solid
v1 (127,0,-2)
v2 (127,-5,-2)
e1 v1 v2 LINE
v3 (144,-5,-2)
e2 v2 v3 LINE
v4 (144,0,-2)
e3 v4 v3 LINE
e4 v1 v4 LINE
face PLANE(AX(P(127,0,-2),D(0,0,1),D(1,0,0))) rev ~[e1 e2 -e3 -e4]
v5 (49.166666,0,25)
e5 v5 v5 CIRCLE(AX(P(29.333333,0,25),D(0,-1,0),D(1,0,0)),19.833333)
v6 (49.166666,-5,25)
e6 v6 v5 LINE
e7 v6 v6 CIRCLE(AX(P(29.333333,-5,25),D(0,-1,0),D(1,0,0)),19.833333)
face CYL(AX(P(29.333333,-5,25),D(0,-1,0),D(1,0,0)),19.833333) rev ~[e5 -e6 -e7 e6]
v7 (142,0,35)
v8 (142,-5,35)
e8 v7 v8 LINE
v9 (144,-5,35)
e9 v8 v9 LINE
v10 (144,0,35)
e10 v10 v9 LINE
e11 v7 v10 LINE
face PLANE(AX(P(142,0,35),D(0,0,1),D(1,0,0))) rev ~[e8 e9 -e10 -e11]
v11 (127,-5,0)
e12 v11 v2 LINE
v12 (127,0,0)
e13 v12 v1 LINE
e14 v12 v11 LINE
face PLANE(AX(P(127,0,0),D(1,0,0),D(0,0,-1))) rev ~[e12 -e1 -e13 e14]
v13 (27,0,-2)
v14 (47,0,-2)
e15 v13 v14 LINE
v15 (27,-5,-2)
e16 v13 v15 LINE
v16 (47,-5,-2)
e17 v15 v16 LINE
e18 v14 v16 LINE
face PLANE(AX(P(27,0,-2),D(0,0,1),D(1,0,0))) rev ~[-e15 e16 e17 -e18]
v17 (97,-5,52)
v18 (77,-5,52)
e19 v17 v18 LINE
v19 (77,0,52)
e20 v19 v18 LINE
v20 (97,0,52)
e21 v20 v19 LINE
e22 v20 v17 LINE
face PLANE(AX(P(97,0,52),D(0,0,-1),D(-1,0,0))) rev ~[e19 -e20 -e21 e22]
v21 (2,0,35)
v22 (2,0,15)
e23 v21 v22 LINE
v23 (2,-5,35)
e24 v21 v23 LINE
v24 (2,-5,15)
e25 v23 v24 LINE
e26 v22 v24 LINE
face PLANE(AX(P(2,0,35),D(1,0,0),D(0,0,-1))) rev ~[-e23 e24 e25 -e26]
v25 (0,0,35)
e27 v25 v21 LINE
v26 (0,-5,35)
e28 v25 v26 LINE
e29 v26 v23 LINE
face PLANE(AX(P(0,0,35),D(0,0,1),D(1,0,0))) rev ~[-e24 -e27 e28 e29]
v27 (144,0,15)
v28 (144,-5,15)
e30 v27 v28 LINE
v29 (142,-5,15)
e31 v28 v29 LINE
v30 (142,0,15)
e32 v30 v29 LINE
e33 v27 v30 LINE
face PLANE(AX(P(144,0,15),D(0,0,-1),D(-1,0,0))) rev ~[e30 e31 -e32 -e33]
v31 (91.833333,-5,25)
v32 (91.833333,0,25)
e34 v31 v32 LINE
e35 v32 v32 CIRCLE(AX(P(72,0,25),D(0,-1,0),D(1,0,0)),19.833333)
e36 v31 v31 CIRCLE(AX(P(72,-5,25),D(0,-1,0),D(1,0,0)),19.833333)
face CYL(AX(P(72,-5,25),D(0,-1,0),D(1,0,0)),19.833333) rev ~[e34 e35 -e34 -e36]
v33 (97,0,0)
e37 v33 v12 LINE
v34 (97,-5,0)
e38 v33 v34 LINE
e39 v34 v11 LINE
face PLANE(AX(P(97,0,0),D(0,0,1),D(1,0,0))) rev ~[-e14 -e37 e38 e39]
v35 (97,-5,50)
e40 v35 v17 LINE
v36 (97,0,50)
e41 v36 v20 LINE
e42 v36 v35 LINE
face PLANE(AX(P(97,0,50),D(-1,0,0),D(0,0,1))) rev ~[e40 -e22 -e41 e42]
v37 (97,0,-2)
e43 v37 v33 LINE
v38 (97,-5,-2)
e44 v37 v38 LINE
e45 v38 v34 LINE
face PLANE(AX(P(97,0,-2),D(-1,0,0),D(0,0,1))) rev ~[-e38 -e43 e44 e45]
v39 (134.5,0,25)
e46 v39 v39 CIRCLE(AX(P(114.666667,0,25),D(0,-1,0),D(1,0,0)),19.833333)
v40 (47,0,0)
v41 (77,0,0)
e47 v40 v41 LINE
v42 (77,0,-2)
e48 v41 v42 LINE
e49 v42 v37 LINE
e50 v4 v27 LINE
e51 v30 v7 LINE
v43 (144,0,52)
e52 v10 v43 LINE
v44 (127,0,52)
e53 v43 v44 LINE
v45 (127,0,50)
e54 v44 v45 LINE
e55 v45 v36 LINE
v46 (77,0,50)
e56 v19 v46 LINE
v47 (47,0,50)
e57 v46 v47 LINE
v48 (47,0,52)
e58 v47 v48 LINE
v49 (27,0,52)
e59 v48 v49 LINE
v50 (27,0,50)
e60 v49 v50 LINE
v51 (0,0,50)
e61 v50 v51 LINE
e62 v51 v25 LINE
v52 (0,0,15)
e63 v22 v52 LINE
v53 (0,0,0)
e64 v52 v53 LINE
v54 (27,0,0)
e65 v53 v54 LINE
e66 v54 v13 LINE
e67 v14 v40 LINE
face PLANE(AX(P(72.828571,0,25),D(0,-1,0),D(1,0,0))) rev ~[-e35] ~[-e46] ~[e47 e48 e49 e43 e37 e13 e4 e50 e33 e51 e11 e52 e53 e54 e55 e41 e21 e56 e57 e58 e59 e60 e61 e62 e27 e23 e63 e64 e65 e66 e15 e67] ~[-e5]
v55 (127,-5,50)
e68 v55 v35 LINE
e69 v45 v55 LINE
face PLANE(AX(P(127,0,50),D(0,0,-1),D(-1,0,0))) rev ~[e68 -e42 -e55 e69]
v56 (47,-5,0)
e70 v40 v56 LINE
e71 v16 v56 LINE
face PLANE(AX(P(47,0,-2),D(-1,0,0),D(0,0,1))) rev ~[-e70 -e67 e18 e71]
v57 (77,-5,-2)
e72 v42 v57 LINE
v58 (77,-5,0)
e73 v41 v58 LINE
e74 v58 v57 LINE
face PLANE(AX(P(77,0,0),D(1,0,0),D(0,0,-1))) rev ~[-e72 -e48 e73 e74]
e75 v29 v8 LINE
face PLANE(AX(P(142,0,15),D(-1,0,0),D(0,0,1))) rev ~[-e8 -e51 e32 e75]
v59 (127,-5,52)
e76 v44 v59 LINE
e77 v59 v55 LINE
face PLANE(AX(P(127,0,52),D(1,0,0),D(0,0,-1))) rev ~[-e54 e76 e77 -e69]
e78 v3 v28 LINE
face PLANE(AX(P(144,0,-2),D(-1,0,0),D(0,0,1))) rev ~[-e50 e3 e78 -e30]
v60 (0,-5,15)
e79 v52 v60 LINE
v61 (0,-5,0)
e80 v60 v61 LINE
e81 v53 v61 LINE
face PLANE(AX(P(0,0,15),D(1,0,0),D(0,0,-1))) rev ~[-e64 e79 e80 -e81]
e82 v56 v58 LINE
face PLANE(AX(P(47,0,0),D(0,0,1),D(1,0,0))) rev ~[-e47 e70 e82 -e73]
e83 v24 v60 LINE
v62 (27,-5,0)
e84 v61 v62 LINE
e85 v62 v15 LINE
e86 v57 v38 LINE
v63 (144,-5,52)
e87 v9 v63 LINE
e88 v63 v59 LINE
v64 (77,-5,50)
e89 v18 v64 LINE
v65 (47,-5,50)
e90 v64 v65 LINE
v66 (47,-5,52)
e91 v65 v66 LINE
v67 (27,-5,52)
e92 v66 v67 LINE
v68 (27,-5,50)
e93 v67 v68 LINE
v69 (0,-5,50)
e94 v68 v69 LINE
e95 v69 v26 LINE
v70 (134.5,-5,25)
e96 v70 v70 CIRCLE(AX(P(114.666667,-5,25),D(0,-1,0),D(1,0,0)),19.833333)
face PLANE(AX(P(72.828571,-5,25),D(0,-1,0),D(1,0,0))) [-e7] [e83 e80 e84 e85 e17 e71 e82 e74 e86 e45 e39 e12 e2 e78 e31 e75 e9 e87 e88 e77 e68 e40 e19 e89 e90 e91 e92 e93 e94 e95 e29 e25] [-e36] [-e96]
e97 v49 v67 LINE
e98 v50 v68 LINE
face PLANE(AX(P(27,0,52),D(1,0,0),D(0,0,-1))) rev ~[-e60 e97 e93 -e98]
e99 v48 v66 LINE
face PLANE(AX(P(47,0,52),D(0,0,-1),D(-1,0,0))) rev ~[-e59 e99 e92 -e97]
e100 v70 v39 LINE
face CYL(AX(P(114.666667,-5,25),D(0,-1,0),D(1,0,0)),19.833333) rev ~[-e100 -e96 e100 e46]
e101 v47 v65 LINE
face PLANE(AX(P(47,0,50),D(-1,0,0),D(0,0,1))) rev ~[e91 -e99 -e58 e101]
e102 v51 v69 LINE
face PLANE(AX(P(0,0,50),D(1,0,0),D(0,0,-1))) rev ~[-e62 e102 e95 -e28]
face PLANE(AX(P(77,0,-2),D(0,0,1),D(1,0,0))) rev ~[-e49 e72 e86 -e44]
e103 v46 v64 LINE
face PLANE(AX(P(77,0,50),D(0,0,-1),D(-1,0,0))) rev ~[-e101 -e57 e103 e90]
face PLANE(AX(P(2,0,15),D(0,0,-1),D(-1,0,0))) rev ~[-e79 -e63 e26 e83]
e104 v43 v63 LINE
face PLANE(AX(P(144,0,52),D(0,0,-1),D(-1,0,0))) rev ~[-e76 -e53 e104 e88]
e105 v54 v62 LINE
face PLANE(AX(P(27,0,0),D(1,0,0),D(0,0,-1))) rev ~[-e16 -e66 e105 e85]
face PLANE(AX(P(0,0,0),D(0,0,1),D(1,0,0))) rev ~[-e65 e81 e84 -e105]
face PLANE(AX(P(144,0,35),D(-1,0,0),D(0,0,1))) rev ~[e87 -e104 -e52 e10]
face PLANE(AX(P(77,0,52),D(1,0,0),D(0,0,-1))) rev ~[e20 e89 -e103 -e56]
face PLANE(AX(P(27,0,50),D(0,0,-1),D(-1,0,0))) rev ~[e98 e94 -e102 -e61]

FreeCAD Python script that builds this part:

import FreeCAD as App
import Part
import Sketcher


def add_polygon(sketch, points):
    """Adds a closed chain of lines whose ends are joined by coincident constraints."""
    first, n = sketch.GeometryCount, len(points)
    for a, b in zip(points, points[1:] + points[:1]):
        sketch.addGeometry(Part.LineSegment(App.Vector(*a, 0), App.Vector(*b, 0)), False)
    for i in range(n):
        sketch.addConstraint(Sketcher.Constraint("Coincident", first + i, 2, first + (i + 1) % n, 1))

doc = App.newDocument("Part")
params = doc.addObject("Spreadsheet::Sheet", "Params")
for row, (alias, value) in enumerate([
    ("sketch1_width", "27 mm"),
    ("sketch1_width2", "20 mm"),
    ("sketch1_width3", "30 mm"),
    ("sketch1_width4", "17 mm"),
    ("sketch1_width5", "2 mm"),
    ("pad1_length", "5 mm"),
    ("pocket1_length", "25 mm"),
], start=1):
    params.set(f"A{row}", alias)
    params.set(f"B{row}", "=" + value)
    params.setAlias(f"B{row}", alias)

body = doc.addObject("PartDesign::Body", "Body")

sketch1 = doc.addObject("Sketcher::SketchObject", "Sketch")
body.addObject(sketch1)
sketch1.AttachmentSupport = (doc.XZ_Plane, [""])
sketch1.MapMode = "FlatFace"
add_polygon(sketch1, [(0, 15), (0, 0), (27, 0), (27, -2), (47, -2), (47, 0), (77, 0), (77, -2), (97, -2), (97, 0), (127, 0), (127, -2), (144, -2), (144, 15), (142, 15), (142, 35), (144, 35), (144, 52), (127, 52), (127, 50), (97, 50), (97, 52), (77, 52), (77, 50), (47, 50), (47, 52), (27, 52), (27, 50), (0, 50), (0, 35), (2, 35), (2, 15)])
sketch1.addConstraint(Sketcher.Constraint("Vertical", 0))
sketch1.addConstraint(Sketcher.Constraint("Horizontal", 1))
sketch1.addConstraint(Sketcher.Constraint("Vertical", 2))
sketch1.addConstraint(Sketcher.Constraint("Horizontal", 3))
sketch1.addConstraint(Sketcher.Constraint("Vertical", 4))
sketch1.addConstraint(Sketcher.Constraint("Horizontal", 5))
sketch1.addConstraint(Sketcher.Constraint("Vertical", 6))
sketch1.addConstraint(Sketcher.Constraint("Horizontal", 7))
sketch1.addConstraint(Sketcher.Constraint("Vertical", 8))
sketch1.addConstraint(Sketcher.Constraint("Horizontal", 9))
sketch1.addConstraint(Sketcher.Constraint("Vertical", 10))
sketch1.addConstraint(Sketcher.Constraint("Horizontal", 11))
sketch1.addConstraint(Sketcher.Constraint("Vertical", 12))
sketch1.addConstraint(Sketcher.Constraint("Horizontal", 13))
sketch1.addConstraint(Sketcher.Constraint("Vertical", 14))
sketch1.addConstraint(Sketcher.Constraint("Horizontal", 15))
sketch1.addConstraint(Sketcher.Constraint("Vertical", 16))
sketch1.addConstraint(Sketcher.Constraint("Horizontal", 17))
sketch1.addConstraint(Sketcher.Constraint("Vertical", 18))
sketch1.addConstraint(Sketcher.Constraint("Horizontal", 19))
sketch1.addConstraint(Sketcher.Constraint("Vertical", 20))
sketch1.addConstraint(Sketcher.Constraint("Horizontal", 21))
sketch1.addConstraint(Sketcher.Constraint("Vertical", 22))
sketch1.addConstraint(Sketcher.Constraint("Horizontal", 23))
sketch1.addConstraint(Sketcher.Constraint("Vertical", 24))
sketch1.addConstraint(Sketcher.Constraint("Horizontal", 25))
sketch1.addConstraint(Sketcher.Constraint("Vertical", 26))
sketch1.addConstraint(Sketcher.Constraint("Horizontal", 27))
sketch1.addConstraint(Sketcher.Constraint("Vertical", 28))
sketch1.addConstraint(Sketcher.Constraint("Horizontal", 29))
sketch1.addConstraint(Sketcher.Constraint("Vertical", 30))
sketch1.addConstraint(Sketcher.Constraint("Horizontal", 31))
sketch1.addConstraint(Sketcher.Constraint("Coincident", 0, 2, -1, 1))
sketch1.addConstraint(Sketcher.Constraint("PointOnObject", 4, 2, -1))
sketch1.addConstraint(Sketcher.Constraint("PointOnObject", 8, 2, -1))
sketch1.addConstraint(Sketcher.Constraint("PointOnObject", 27, 2, -2))
sketch1.addConstraint(Sketcher.Constraint("Horizontal", 3, 2, 6, 2))
sketch1.addConstraint(Sketcher.Constraint("Horizontal", 7, 2, 10, 2))
sketch1.addConstraint(Sketcher.Constraint("Horizontal", 17, 2, 20, 2))
sketch1.addConstraint(Sketcher.Constraint("Horizontal", 19, 2, 22, 2))
sketch1.addConstraint(Sketcher.Constraint("Horizontal", 21, 2, 24, 2))
sketch1.addConstraint(Sketcher.Constraint("Horizontal", 23, 2, 26, 2))
sketch1.addConstraint(Sketcher.Constraint("Horizontal", 15, 2, 28, 2))
sketch1.addConstraint(Sketcher.Constraint("Horizontal", 13, 2, 30, 2))
sketch1.addConstraint(Sketcher.Constraint("Vertical", 12, 2, 15, 2))
sketch1.addConstraint(Sketcher.Constraint("Vertical", 10, 2, 17, 2))
sketch1.addConstraint(Sketcher.Constraint("Vertical", 8, 2, 19, 2))
sketch1.addConstraint(Sketcher.Constraint("Vertical", 6, 2, 21, 2))
sketch1.addConstraint(Sketcher.Constraint("Vertical", 4, 2, 23, 2))
sketch1.addConstraint(Sketcher.Constraint("Vertical", 2, 2, 25, 2))
sketch1.addConstraint(Sketcher.Constraint("Equal", 3, 7))
sketch1.addConstraint(Sketcher.Constraint("Equal", 5, 9))
sketch1.addConstraint(Sketcher.Constraint("Equal", 15, 29))
sketch1.addConstraint(Sketcher.Constraint("Equal", 31, 2))
sketch1.addConstraint(Sketcher.Constraint("Equal", 17, 12))
sketch1.addConstraint(Sketcher.Constraint("Equal", 25, 14))
sketch1.addConstraint(Sketcher.Constraint("Equal", 12, 16))
sketch1.addConstraint(Sketcher.Constraint("Equal", 10, 18))
sketch1.addConstraint(Sketcher.Constraint("DistanceX", 1, 1, 1, 2, 27.0))
sketch1.addConstraint(Sketcher.Constraint("DistanceX", 3, 1, 3, 2, 20.0))
sketch1.addConstraint(Sketcher.Constraint("DistanceX", 5, 1, 5, 2, 30.0))
sketch1.addConstraint(Sketcher.Constraint("DistanceX", 11, 1, 11, 2, 17.0))
sketch1.addConstraint(Sketcher.Constraint("DistanceX", 13, 2, 13, 1, 2.0))
sketch1.setExpression("Constraints[90]", "Params.sketch1_width")
sketch1.setExpression("Constraints[91]", "Params.sketch1_width2")
sketch1.setExpression("Constraints[92]", "Params.sketch1_width3")
sketch1.setExpression("Constraints[93]", "Params.sketch1_width4")
sketch1.setExpression("Constraints[94]", "Params.sketch1_width5")
pad1 = doc.addObject("PartDesign::Pad", "Pad")
body.addObject(pad1)
pad1.Profile = sketch1
pad1.setExpression("Length", "Params.pad1_length")

sketch2 = doc.addObject("Sketcher::SketchObject", "Sketch001")
body.addObject(sketch2)
sketch2.AttachmentSupport = (doc.XZ_Plane, [""])
sketch2.MapMode = "FlatFace"
sketch2.AttachmentOffset = App.Placement(App.Vector(0, 0, 5), App.Rotation())
sketch2.addGeometry(Part.Circle(App.Vector(72, 25, 0), App.Vector(0, 0, 1), 19.833333), False)
sketch2.addGeometry(Part.Circle(App.Vector(114.666667, 25, 0), App.Vector(0, 0, 1), 19.833333), False)
sketch2.addGeometry(Part.Circle(App.Vector(29.333333, 25, 0), App.Vector(0, 0, 1), 19.833333), False)
sketch2.addConstraint(Sketcher.Constraint("Equal", 0, 1))
sketch2.addConstraint(Sketcher.Constraint("Equal", 1, 2))
sketch2.addConstraint(Sketcher.Constraint("Horizontal", 0, 3, 1, 3))
sketch2.addConstraint(Sketcher.Constraint("Horizontal", 1, 3, 2, 3))
sketch2.addConstraint(Sketcher.Constraint("DistanceX", -1, 1, 0, 3, 72.0))
sketch2.addConstraint(Sketcher.Constraint("DistanceY", -1, 1, 0, 3, 25.0))
sketch2.addConstraint(Sketcher.Constraint("Diameter", 0, 39.666666))
sketch2.addConstraint(Sketcher.Constraint("DistanceX", -1, 1, 1, 3, 114.666667))
sketch2.addConstraint(Sketcher.Constraint("DistanceX", -1, 1, 2, 3, 29.333333))
pocket1 = doc.addObject("PartDesign::Pocket", "Pocket")
body.addObject(pocket1)
pocket1.Profile = sketch2
pocket1.setExpression("Length", "Params.pocket1_length")

doc.recompute()
